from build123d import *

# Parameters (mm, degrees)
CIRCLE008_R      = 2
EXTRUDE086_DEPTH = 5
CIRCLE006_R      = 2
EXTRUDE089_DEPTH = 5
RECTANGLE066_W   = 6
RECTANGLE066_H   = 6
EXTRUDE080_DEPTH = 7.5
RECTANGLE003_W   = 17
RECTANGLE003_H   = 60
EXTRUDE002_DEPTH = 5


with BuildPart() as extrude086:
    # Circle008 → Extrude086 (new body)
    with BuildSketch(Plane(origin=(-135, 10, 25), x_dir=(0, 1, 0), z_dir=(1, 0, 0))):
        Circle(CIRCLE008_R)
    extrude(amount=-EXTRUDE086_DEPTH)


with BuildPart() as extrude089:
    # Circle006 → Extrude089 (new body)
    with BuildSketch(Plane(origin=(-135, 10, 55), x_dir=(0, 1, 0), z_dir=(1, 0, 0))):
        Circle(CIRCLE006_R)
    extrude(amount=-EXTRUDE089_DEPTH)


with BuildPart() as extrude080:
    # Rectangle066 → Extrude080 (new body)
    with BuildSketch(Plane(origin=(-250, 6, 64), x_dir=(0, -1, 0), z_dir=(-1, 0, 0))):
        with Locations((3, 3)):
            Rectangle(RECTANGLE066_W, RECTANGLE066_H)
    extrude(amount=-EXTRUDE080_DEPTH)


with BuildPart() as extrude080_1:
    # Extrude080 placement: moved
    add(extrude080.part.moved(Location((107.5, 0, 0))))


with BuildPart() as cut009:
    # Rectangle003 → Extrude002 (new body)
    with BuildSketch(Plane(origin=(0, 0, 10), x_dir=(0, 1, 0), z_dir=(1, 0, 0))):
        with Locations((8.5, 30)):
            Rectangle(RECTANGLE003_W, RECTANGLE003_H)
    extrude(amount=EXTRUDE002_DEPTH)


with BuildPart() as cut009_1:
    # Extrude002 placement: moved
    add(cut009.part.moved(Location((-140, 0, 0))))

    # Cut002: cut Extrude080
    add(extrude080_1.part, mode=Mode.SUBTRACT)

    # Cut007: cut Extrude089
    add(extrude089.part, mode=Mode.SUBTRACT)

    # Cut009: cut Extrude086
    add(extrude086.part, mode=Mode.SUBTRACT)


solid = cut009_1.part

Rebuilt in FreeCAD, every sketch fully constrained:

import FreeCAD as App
import Part
import Sketcher

V = App.Vector

doc = App.newDocument("Part")
body = doc.addObject("PartDesign::Body", "Body")

sketch1 = body.newObject("Sketcher::SketchObject", "Sketch")
sketch1.AttachmentSupport = (doc.getObject("YZ_Plane"), [""])
sketch1.MapMode = "FlatFace"
sketch1.AttachmentOffset = App.Placement(V(0, 0, -135), App.Rotation())
sketch1.addGeometry(Part.Circle(V(10, 25, 0), V(0, 0, 1), 2), False)
sketch1.addConstraint([
    Sketcher.Constraint("Diameter", 0, 4.0),
    Sketcher.Constraint("DistanceX", -1, 1, 0, 3, 10.0),
    Sketcher.Constraint("DistanceY", -1, 1, 0, 3, 25.0),
])
pad1 = body.newObject("PartDesign::Pad", "Pad")
pad1.Profile = sketch1
pad1.Length = 5
pad1.Reversed = True
body2 = doc.addObject("PartDesign::Body", "Body001")

sketch2 = body2.newObject("Sketcher::SketchObject", "Sketch001")
sketch2.AttachmentSupport = (doc.getObject("YZ_Plane001"), [""])
sketch2.MapMode = "FlatFace"
sketch2.AttachmentOffset = App.Placement(V(0, 0, -135), App.Rotation())
sketch2.addGeometry(Part.Circle(V(10, 55, 0), V(0, 0, 1), 2), False)
sketch2.addConstraint([
    Sketcher.Constraint("Diameter", 0, 4.0),
    Sketcher.Constraint("DistanceX", -1, 1, 0, 3, 10.0),
    Sketcher.Constraint("DistanceY", -1, 1, 0, 3, 55.0),
])
pad2 = body2.newObject("PartDesign::Pad", "Pad001")
pad2.Profile = sketch2
pad2.Length = 5
pad2.Reversed = True
body3 = doc.addObject("PartDesign::Body", "Body002")

sketch3 = body3.newObject("Sketcher::SketchObject", "Sketch002")
sketch3.AttachmentSupport = (doc.getObject("YZ_Plane002"), [""])
sketch3.MapMode = "FlatFace"
sketch3.AttachmentOffset = App.Placement(V(0, 0, -250), App.Rotation())
sketch3.addGeometry([
    Part.LineSegment(V(6, 70, 0), V(6, 64, 0)),
    Part.LineSegment(V(6, 64, 0), V(0, 64, 0)),
    Part.LineSegment(V(0, 64, 0), V(0, 70, 0)),
    Part.LineSegment(V(0, 70, 0), V(6, 70, 0)),
], False)
sketch3.addConstraint([
    Sketcher.Constraint("Coincident", 0, 2, 1, 1),
    Sketcher.Constraint("Coincident", 1, 2, 2, 1),
    Sketcher.Constraint("Coincident", 2, 2, 3, 1),
    Sketcher.Constraint("Coincident", 3, 2, 0, 1),
    Sketcher.Constraint("Vertical", 0),
    Sketcher.Constraint("Horizontal", 1),
    Sketcher.Constraint("Vertical", 2),
    Sketcher.Constraint("Horizontal", 3),
    Sketcher.Constraint("PointOnObject", 1, 2, -2),
    Sketcher.Constraint("Equal", 3, 0),
    Sketcher.Constraint("DistanceX", 1, 2, 1, 1, 6.0),
    Sketcher.Constraint("DistanceY", -1, 1, 0, 2, 64.0),
])
pad3 = body3.newObject("PartDesign::Pad", "Pad002")
pad3.Profile = sketch3
pad3.Length = 7.5
body4 = doc.addObject("PartDesign::Body", "Body003")
doc.recompute()

body3.Placement = App.Placement(V(107.5, 0, 0), App.Rotation(V(0, 0, 1), 0))
boolean = body4.newObject("PartDesign::Boolean", "Boolean")
boolean.Type = "Fuse"
boolean.addObjects([body3])
body5 = doc.addObject("PartDesign::Body", "Body004")

sketch4 = body5.newObject("Sketcher::SketchObject", "Sketch003")
sketch4.AttachmentSupport = (doc.getObject("YZ_Plane004"), [""])
sketch4.MapMode = "FlatFace"
sketch4.addGeometry([
    Part.LineSegment(V(0, 70, 0), V(0, 10, 0)),
    Part.LineSegment(V(0, 10, 0), V(17, 10, 0)),
    Part.LineSegment(V(17, 10, 0), V(17, 70, 0)),
    Part.LineSegment(V(17, 70, 0), V(0, 70, 0)),
], False)
sketch4.addConstraint([
    Sketcher.Constraint("Coincident", 0, 2, 1, 1),
    Sketcher.Constraint("Coincident", 1, 2, 2, 1),
    Sketcher.Constraint("Coincident", 2, 2, 3, 1),
    Sketcher.Constraint("Coincident", 3, 2, 0, 1),
    Sketcher.Constraint("Vertical", 0),
    Sketcher.Constraint("Horizontal", 1),
    Sketcher.Constraint("Vertical", 2),
    Sketcher.Constraint("Horizontal", 3),
    Sketcher.Constraint("PointOnObject", 0, 2, -2),
    Sketcher.Constraint("DistanceX", 1, 1, 1, 2, 17.0),
    Sketcher.Constraint("DistanceY", 0, 2, 0, 1, 60.0),
    Sketcher.Constraint("DistanceY", -1, 1, 0, 2, 10.0),
])
pad4 = body5.newObject("PartDesign::Pad", "Pad003")
pad4.Profile = sketch4
pad4.Length = 5
body6 = doc.addObject("PartDesign::Body", "Body005")
doc.recompute()

body5.Placement = App.Placement(V(-140, 0, 0), App.Rotation(V(0, 0, 1), 0))
boolean2 = body6.newObject("PartDesign::Boolean", "Boolean001")
boolean2.Type = "Fuse"
boolean2.addObjects([body5])
doc.recompute()

boolean3 = body6.newObject("PartDesign::Boolean", "Boolean002")
boolean3.Type = "Cut"
boolean3.addObjects([body4])
doc.recompute()

boolean4 = body6.newObject("PartDesign::Boolean", "Boolean003")
boolean4.Type = "Cut"
boolean4.addObjects([body2])
doc.recompute()

boolean5 = body6.newObject("PartDesign::Boolean", "Boolean004")
boolean5.Type = "Cut"
boolean5.addObjects([body])

doc.recompute()
